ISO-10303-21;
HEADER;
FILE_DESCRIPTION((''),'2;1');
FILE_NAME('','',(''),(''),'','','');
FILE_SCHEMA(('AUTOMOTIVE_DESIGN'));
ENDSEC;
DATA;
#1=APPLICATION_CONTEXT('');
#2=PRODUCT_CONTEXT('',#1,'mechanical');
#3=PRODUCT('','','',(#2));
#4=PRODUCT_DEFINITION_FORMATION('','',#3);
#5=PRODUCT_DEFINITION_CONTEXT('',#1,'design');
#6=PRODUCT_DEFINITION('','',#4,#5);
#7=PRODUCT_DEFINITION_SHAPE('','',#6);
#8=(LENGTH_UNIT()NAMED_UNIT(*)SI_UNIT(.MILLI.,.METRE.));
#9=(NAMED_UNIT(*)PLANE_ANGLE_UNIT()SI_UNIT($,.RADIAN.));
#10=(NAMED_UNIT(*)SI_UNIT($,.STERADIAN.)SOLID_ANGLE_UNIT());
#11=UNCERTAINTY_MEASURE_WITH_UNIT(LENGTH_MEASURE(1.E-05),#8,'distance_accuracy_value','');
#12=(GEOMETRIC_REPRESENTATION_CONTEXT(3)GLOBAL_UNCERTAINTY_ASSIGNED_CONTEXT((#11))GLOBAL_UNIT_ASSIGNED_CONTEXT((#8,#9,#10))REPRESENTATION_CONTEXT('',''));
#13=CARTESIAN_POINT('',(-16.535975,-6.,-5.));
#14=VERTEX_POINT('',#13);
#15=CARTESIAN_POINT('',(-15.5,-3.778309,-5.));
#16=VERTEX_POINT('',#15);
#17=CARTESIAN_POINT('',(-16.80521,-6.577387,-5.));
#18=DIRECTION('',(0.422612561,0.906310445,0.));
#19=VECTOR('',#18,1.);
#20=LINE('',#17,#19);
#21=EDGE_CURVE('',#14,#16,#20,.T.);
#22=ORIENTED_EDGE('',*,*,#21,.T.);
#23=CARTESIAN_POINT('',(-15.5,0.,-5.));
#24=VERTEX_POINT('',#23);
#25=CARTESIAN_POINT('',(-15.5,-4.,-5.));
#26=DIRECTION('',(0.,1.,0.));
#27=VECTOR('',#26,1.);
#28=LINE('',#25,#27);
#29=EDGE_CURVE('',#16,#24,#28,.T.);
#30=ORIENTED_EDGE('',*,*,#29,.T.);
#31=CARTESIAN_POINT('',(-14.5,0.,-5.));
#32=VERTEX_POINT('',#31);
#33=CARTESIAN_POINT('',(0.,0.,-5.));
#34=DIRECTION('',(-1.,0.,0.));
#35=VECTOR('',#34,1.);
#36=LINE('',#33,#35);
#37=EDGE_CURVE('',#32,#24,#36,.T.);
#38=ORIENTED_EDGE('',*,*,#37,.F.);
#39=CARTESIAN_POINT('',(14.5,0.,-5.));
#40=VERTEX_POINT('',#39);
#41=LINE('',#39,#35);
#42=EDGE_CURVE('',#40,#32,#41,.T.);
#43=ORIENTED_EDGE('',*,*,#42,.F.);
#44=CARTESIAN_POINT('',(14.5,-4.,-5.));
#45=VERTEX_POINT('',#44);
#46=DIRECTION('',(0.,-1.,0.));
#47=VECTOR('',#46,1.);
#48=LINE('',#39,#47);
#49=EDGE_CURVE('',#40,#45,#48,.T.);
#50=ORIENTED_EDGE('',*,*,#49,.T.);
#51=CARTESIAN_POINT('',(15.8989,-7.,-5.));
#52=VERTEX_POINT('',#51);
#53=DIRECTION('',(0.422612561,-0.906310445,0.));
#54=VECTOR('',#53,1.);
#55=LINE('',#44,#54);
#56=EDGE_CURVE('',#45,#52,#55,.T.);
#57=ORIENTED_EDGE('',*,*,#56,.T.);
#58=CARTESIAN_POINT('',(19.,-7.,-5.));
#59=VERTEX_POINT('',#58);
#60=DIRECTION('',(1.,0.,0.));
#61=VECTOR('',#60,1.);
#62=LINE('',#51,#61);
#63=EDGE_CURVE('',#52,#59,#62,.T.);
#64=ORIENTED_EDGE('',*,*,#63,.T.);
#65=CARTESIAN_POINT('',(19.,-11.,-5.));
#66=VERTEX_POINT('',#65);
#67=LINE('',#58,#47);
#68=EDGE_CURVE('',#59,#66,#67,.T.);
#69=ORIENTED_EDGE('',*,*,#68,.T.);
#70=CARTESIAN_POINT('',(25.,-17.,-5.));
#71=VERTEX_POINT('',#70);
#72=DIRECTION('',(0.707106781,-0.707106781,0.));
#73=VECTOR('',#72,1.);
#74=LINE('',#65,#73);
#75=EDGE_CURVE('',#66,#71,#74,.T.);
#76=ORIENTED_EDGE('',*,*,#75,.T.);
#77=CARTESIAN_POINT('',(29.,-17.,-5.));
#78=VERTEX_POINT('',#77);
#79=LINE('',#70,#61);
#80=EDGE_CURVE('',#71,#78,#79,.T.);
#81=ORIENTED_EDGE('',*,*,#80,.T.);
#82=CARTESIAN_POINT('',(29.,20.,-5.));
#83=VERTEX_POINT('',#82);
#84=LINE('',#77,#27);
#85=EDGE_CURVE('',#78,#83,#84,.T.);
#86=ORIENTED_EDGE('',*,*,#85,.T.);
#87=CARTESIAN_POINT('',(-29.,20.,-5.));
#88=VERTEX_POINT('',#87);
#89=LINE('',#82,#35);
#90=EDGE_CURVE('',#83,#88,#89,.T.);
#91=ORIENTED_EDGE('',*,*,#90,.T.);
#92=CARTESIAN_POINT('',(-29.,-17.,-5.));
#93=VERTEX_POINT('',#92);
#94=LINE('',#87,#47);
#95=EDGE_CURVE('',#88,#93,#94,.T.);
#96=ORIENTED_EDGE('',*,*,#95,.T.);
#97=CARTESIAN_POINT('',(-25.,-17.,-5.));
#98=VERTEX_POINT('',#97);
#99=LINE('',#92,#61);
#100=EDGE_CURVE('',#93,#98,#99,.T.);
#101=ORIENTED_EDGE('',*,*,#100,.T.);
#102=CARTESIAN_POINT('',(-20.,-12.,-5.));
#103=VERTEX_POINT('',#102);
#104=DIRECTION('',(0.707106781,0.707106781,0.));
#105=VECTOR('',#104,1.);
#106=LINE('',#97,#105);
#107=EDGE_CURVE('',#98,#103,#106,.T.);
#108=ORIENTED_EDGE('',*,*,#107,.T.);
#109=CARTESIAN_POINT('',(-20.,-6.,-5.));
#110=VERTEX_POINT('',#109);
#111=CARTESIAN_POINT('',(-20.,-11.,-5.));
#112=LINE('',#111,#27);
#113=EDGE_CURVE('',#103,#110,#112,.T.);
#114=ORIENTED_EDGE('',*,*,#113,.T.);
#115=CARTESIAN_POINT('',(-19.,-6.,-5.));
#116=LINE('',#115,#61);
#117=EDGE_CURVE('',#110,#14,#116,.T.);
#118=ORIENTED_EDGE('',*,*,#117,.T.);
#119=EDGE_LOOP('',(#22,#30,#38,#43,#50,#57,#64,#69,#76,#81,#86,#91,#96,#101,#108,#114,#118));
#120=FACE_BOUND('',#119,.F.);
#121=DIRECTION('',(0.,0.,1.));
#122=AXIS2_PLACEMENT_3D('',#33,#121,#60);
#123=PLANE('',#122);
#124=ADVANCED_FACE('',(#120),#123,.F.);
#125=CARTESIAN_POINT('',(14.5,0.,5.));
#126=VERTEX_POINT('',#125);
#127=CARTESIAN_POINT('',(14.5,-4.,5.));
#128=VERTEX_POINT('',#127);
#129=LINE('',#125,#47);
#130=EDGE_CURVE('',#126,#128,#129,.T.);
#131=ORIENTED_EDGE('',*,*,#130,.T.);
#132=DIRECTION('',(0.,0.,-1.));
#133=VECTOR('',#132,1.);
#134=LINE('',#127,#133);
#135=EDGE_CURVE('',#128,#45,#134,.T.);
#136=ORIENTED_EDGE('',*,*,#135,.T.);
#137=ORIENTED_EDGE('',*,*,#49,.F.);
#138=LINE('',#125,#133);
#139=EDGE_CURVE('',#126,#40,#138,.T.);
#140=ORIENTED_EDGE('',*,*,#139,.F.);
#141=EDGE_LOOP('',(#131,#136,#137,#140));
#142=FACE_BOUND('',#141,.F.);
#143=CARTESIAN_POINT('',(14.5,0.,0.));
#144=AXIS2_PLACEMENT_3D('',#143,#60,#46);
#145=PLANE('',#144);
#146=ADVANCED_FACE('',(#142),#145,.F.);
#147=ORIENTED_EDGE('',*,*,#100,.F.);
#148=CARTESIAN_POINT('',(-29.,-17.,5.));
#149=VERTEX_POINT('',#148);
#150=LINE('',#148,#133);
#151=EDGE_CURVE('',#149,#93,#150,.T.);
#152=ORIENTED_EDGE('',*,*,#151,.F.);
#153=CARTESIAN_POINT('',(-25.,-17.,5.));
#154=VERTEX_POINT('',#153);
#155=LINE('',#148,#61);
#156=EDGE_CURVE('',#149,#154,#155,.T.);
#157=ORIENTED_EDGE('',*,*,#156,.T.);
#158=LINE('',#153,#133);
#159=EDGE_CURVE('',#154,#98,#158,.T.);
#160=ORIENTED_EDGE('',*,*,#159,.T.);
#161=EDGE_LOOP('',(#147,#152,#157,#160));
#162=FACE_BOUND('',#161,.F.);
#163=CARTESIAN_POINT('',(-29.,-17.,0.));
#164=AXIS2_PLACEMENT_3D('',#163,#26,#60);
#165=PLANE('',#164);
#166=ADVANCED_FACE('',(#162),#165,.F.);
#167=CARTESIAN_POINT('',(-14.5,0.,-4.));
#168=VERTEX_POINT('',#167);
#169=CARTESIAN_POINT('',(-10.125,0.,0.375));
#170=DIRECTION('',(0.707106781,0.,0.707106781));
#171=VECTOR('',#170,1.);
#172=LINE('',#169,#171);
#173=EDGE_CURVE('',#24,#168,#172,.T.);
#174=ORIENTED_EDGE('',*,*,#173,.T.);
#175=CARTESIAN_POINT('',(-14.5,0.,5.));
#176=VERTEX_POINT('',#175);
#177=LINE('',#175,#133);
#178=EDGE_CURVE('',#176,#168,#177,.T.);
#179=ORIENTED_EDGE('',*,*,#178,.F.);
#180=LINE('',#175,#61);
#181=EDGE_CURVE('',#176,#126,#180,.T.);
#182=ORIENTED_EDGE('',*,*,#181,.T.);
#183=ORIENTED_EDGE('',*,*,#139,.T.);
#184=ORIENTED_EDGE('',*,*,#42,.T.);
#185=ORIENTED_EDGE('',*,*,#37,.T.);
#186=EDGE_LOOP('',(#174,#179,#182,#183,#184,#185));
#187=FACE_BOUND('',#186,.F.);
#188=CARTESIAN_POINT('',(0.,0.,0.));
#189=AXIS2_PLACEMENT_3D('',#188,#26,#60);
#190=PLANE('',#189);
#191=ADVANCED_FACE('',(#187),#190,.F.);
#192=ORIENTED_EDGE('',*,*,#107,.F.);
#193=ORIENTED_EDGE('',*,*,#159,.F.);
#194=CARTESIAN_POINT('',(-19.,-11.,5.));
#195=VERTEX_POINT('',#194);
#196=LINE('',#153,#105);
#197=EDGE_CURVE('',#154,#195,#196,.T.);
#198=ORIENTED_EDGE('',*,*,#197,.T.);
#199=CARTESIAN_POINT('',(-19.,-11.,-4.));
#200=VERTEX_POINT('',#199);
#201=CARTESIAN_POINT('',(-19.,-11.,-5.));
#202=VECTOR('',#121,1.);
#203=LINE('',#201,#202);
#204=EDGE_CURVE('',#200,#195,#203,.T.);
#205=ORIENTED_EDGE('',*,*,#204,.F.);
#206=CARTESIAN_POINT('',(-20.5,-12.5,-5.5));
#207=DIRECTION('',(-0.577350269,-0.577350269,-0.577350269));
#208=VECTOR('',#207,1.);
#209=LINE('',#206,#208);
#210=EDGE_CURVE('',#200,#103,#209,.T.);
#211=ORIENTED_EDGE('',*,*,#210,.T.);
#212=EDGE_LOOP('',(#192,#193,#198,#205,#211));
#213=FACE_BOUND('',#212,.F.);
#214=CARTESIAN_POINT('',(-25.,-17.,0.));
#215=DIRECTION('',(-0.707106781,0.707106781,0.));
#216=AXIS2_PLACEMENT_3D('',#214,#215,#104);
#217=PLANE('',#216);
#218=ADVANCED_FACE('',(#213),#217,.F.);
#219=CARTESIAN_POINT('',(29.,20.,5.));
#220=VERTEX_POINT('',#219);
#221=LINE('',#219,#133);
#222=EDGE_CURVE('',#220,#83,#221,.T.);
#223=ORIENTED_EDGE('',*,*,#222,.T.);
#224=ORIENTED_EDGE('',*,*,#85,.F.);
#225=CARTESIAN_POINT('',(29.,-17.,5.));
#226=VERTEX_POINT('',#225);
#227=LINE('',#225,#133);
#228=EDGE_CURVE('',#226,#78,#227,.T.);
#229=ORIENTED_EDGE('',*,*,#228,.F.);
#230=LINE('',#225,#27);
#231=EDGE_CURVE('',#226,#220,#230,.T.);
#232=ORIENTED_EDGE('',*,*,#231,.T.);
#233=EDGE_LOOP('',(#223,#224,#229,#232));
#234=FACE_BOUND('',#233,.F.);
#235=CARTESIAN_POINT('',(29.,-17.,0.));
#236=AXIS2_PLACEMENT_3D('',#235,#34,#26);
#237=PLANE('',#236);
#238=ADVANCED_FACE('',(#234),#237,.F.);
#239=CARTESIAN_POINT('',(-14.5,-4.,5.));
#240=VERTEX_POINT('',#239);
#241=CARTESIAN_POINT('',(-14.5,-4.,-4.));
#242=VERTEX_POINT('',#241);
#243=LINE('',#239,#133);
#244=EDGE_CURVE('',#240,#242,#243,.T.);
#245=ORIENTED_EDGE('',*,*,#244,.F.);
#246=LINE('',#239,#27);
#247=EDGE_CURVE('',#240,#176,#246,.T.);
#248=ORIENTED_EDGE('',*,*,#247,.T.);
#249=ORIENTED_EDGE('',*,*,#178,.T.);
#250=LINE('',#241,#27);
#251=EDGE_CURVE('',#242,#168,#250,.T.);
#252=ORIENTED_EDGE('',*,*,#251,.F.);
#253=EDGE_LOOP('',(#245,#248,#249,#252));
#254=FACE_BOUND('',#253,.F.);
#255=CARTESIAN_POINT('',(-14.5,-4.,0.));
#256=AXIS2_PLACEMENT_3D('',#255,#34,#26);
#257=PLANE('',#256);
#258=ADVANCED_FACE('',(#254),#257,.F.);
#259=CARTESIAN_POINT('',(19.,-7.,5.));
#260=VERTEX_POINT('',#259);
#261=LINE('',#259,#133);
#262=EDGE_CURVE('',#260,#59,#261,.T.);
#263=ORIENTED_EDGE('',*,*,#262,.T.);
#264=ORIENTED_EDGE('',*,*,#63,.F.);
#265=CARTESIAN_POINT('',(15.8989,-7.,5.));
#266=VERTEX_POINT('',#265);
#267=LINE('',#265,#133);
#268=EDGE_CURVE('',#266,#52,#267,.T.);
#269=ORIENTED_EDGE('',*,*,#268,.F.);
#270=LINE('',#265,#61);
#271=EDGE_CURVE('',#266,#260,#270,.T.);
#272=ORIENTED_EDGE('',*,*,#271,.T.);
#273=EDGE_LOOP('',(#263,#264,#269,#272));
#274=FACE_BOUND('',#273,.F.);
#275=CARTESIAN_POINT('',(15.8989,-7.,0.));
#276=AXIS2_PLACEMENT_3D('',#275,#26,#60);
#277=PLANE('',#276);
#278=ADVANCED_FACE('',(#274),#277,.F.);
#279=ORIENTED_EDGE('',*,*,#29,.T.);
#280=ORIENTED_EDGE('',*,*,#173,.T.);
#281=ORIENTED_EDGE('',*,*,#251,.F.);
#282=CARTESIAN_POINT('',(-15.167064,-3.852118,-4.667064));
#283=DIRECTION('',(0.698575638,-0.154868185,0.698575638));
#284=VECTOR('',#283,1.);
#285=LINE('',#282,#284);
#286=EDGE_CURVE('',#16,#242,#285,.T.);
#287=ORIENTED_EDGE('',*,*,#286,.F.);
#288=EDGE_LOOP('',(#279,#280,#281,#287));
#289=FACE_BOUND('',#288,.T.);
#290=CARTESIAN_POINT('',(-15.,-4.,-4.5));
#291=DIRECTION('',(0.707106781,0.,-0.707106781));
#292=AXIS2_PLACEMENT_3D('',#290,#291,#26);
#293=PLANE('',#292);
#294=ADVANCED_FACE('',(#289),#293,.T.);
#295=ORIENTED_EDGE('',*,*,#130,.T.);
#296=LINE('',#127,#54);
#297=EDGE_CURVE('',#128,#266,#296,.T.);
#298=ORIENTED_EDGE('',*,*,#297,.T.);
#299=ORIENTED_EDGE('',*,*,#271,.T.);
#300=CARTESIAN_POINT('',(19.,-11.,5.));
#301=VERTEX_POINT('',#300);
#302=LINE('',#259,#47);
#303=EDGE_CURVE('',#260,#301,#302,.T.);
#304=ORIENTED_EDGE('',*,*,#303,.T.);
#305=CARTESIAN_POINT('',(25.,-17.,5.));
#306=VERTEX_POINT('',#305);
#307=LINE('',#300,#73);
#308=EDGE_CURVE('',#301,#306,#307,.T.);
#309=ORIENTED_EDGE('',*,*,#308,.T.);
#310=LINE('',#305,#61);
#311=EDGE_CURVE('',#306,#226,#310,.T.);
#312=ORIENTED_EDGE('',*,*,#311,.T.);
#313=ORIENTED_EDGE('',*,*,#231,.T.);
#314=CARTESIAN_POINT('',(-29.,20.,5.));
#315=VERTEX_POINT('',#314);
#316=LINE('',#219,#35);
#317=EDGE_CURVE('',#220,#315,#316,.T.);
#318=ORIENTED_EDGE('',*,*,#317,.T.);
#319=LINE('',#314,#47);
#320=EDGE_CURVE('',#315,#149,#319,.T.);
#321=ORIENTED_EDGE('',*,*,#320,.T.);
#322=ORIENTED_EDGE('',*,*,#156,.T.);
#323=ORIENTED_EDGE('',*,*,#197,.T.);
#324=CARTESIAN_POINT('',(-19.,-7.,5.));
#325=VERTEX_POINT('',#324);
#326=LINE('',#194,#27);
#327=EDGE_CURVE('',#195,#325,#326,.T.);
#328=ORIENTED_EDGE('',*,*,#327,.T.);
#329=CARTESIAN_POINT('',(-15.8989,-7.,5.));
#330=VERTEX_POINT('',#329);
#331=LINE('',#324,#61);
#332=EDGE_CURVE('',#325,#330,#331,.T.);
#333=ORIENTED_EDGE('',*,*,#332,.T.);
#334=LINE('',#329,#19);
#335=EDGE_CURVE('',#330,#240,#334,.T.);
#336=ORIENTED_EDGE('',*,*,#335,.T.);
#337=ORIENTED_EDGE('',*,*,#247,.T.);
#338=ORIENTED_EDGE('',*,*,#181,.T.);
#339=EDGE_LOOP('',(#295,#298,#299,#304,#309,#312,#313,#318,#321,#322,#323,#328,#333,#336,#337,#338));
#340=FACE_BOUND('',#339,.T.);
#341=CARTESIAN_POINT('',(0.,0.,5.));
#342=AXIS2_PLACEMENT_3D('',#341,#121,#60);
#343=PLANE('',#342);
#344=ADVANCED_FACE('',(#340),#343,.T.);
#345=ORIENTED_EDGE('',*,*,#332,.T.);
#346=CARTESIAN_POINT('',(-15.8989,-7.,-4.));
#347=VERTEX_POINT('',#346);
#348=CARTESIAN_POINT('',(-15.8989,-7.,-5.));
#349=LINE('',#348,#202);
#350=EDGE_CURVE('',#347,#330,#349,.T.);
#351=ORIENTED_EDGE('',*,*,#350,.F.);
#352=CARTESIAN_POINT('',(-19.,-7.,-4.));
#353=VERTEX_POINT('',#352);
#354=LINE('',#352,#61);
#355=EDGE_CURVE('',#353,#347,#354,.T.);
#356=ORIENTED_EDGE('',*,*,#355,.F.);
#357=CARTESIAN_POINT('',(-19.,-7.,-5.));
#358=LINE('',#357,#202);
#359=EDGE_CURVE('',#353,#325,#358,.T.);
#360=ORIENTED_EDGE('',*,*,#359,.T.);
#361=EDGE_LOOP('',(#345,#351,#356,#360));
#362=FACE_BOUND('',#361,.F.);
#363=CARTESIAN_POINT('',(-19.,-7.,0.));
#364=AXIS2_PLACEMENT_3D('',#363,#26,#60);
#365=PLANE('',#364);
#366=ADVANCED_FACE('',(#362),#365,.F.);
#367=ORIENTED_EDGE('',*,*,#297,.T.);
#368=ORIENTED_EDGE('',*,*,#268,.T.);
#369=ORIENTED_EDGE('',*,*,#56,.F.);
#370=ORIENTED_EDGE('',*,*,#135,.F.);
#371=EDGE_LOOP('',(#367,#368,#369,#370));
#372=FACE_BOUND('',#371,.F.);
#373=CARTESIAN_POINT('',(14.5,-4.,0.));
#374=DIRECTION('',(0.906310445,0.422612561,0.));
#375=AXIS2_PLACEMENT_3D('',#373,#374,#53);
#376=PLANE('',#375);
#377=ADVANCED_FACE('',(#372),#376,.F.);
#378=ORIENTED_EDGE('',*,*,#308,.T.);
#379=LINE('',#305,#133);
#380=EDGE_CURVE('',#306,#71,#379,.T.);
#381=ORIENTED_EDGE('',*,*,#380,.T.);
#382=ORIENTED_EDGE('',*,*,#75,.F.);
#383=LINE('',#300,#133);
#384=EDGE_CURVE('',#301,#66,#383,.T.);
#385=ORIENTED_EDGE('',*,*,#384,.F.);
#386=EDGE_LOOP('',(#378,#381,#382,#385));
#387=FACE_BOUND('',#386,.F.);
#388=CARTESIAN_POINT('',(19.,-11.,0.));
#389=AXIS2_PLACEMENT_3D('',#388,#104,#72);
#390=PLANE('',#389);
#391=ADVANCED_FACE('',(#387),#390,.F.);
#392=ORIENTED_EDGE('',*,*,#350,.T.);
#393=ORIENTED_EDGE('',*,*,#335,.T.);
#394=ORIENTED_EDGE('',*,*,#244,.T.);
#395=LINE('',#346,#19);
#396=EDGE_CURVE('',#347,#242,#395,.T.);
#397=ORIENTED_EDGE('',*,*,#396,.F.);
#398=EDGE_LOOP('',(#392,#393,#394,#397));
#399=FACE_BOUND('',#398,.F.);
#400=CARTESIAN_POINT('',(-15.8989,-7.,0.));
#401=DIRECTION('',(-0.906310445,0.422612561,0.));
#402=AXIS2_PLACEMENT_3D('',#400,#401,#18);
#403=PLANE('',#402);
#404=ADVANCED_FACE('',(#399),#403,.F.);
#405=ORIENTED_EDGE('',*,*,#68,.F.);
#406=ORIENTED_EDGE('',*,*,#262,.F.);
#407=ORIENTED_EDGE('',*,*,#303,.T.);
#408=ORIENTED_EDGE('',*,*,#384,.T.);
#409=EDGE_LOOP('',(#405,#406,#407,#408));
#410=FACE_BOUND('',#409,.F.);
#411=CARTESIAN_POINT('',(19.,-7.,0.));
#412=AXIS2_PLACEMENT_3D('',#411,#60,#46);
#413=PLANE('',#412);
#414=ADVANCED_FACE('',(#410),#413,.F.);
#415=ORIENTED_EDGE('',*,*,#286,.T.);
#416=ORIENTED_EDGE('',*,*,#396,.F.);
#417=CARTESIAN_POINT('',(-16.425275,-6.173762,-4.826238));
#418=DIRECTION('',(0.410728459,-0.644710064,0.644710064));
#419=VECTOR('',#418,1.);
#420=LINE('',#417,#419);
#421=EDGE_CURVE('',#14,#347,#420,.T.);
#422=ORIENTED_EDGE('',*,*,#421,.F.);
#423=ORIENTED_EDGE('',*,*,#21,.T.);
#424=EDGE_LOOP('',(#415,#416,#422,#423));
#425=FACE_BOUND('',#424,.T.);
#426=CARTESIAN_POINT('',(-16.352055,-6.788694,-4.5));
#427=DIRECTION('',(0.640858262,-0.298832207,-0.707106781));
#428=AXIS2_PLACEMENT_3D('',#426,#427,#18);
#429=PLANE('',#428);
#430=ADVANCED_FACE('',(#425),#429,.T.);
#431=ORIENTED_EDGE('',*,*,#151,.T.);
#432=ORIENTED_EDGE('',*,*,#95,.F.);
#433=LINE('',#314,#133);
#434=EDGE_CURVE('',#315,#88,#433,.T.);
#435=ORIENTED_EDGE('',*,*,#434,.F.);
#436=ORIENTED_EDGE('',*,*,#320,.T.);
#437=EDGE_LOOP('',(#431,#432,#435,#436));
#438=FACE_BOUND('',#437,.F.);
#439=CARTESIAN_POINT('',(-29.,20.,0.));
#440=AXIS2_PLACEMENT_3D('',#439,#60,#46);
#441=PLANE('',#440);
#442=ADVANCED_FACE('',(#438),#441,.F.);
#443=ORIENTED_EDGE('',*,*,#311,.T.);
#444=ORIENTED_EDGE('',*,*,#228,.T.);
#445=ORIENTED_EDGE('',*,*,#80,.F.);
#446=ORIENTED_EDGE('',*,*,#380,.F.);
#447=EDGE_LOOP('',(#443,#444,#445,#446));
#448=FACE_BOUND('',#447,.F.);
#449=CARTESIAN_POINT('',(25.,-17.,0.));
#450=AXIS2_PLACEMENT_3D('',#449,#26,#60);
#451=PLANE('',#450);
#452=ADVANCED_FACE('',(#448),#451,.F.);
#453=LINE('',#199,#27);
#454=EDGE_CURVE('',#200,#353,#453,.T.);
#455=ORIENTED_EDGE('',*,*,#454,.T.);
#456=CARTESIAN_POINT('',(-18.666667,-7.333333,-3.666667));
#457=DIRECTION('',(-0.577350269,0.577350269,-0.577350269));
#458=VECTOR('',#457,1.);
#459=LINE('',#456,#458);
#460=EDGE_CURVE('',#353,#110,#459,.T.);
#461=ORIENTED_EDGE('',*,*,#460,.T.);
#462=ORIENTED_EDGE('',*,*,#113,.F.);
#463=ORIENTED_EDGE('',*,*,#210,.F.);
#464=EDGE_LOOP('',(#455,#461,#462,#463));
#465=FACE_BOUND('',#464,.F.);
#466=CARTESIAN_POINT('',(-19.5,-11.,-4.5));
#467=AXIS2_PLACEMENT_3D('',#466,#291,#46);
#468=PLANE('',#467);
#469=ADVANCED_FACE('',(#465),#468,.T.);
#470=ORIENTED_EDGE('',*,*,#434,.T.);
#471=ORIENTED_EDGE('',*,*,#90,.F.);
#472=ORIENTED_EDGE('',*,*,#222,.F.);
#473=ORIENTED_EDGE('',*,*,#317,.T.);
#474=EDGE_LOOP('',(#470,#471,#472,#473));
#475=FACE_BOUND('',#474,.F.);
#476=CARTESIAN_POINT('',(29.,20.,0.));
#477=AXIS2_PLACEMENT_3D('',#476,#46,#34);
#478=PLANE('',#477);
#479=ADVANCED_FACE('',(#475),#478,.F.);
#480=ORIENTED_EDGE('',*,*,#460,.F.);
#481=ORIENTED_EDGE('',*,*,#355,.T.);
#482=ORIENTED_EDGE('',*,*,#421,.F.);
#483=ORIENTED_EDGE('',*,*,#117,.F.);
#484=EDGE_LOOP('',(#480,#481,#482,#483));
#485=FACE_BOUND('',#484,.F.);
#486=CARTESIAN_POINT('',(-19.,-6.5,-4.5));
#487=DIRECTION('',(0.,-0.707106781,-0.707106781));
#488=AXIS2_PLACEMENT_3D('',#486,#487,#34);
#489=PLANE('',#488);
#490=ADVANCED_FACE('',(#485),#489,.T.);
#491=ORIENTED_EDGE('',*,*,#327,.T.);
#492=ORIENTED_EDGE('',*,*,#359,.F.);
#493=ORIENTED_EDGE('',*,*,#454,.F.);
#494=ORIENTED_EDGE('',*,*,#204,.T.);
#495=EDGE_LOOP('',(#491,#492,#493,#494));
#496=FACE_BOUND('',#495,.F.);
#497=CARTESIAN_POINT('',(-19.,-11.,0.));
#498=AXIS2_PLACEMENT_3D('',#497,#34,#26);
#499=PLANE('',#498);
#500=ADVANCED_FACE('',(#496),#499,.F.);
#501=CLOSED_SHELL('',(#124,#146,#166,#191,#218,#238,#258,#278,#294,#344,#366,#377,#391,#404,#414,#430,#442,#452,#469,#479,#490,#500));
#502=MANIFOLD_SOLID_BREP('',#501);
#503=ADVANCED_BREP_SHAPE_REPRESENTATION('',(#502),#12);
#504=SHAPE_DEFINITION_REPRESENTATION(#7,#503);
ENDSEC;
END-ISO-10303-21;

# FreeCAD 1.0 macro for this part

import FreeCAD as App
import Part
import Sketcher
Q = App.Units.Quantity


def edges_at(feature, points):
    """Names of the edges that pass closest to the given points."""
    edges = feature.Shape.Edges
    near = lambda p: min(range(len(edges)), key=lambda i: edges[i].distToShape(Part.Vertex(*p))[0])
    return sorted({f"Edge{near(p) + 1}" for p in points})


def add_polygon(sketch, points):
    """Adds a closed chain of lines whose ends are joined by coincident constraints."""
    first, n = sketch.GeometryCount, len(points)
    for a, b in zip(points, points[1:] + points[:1]):
        sketch.addGeometry(Part.LineSegment(App.Vector(*a, 0), App.Vector(*b, 0)), False)
    for i in range(n):
        sketch.addConstraint(Sketcher.Constraint("Coincident", first + i, 2, first + (i + 1) % n, 1))

doc = App.newDocument("Part")
body = doc.addObject("PartDesign::Body", "Body")

sketch1 = body.newObject("Sketcher::SketchObject", "Sketch")
sketch1.AttachmentSupport = (doc.getObject("XY_Plane"), [""])
sketch1.MapMode = "FlatFace"
add_polygon(sketch1, [(-25, -17), (-19, -11), (-19, -7), (-15.9, -7), (-14.5, -4), (-14.5, 0), (14.5, 0), (14.5, -4), (15.9, -7), (19, -7), (19, -11), (25, -17), (29, -17), (29, 20), (-29, 20), (-29, -17)])
sketch1.addConstraint([
    Sketcher.Constraint("Vertical", 1),
    Sketcher.Constraint("Horizontal", 2),
    Sketcher.Constraint("Vertical", 4),
    Sketcher.Constraint("Horizontal", 5),
    Sketcher.Constraint("Vertical", 6),
    Sketcher.Constraint("Horizontal", 8),
    Sketcher.Constraint("Vertical", 9),
    Sketcher.Constraint("Horizontal", 11),
    Sketcher.Constraint("Vertical", 12),
    Sketcher.Constraint("Horizontal", 13),
    Sketcher.Constraint("Vertical", 14),
    Sketcher.Constraint("Horizontal", 15),
    Sketcher.Constraint("Symmetric", 4, 2, 5, 2, -1, 1),
    Sketcher.Constraint("Symmetric", 2, 2, 7, 2, -2),
    Sketcher.Constraint("Symmetric", 0, 2, 9, 2, -2),
    Sketcher.Constraint("Symmetric", 11, 2, 14, 2, -2),
    Sketcher.Constraint("Perpendicular", 0, 10),
    Sketcher.Constraint("Horizontal", 3, 2, 6, 2),
    Sketcher.Constraint("Equal", 11, 15),
    Sketcher.Constraint("Equal", 15, 1),
    Sketcher.Constraint("Equal", 1, 4),
    Sketcher.Constraint("DistanceX", 5, 1, 5, 2, Q("29 mm")),
    Sketcher.Constraint("DistanceX", 11, 1, 11, 2, Q("4 mm")),
    Sketcher.Constraint("DistanceY", 1, 2, -1, 1, Q("7 mm")),
    Sketcher.Constraint("DistanceX", -1, 1, 10, 2, Q("25 mm")),
    Sketcher.Constraint("DistanceY", -1, 1, 12, 2, Q("20 mm")),
    Sketcher.Constraint("DistanceY", 10, 2, 8, 2, Q("10 mm")),
    Sketcher.Constraint("Angle", 3, Q("65.0004 deg")),
])
pad1 = body.newObject("PartDesign::Pad", "Pad")
pad1.Profile = sketch1
pad1.Length = 10
pad1.Midplane = True
doc.recompute()

chamfer = body.newObject("PartDesign::Chamfer", "Chamfer")
chamfer.Base = (pad1, edges_at(pad1, [
    (-14.5, -2, -5),
    (-15.2, -5.5, -5),
    (-17.45, -7, -5),
    (-19, -9, -5),
]))
chamfer.Size = 1

doc.recompute()
